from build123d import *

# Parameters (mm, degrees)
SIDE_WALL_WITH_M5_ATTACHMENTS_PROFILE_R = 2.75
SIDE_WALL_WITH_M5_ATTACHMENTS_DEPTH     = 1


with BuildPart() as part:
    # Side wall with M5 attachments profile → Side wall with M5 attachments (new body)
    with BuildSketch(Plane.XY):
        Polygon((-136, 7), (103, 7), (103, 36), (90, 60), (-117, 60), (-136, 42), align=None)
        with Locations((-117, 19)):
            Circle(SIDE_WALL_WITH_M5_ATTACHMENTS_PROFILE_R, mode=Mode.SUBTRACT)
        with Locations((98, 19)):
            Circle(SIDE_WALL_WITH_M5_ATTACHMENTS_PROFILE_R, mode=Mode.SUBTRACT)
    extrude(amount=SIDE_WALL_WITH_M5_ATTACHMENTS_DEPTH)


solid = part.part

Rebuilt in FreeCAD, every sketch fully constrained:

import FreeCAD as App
import Part
import Sketcher
from FreeCAD import Vector
Q = App.Units.Quantity

doc = App.newDocument("Part")
body = doc.addObject("PartDesign::Body", "Body")

sketch1 = body.newObject("Sketcher::SketchObject", "Sketch")
sketch1.AttachmentSupport = (doc.getObject("XY_Plane"), [""])
sketch1.MapMode = "FlatFace"
sketch1.addGeometry([
    Part.LineSegment(Vector(-136, 7, 0), Vector(103, 7, 0)),
    Part.LineSegment(Vector(103, 7, 0), Vector(103, 36, 0)),
    Part.LineSegment(Vector(103, 36, 0), Vector(90, 60, 0)),
    Part.LineSegment(Vector(90, 60, 0), Vector(-117, 60, 0)),
    Part.LineSegment(Vector(-117, 60, 0), Vector(-136, 42, 0)),
    Part.LineSegment(Vector(-136, 42, 0), Vector(-136, 7, 0)),
    Part.Circle(Vector(-117, 19, 0), Vector(0, 0, 1), 2.8),
    Part.Circle(Vector(98, 19, 0), Vector(0, 0, 1), 2.8),
], False)
sketch1.addConstraint([
    Sketcher.Constraint("Coincident", 0, 2, 1, 1),
    Sketcher.Constraint("Coincident", 1, 2, 2, 1),
    Sketcher.Constraint("Coincident", 2, 2, 3, 1),
    Sketcher.Constraint("Coincident", 3, 2, 4, 1),
    Sketcher.Constraint("Coincident", 4, 2, 5, 1),
    Sketcher.Constraint("Coincident", 5, 2, 0, 1),
    Sketcher.Constraint("Horizontal", 0),
    Sketcher.Constraint("Vertical", 1),
    Sketcher.Constraint("Horizontal", 3),
    Sketcher.Constraint("Vertical", 5),
    Sketcher.Constraint("Equal", 6, 7),
    Sketcher.Constraint("Horizontal", 6, 3, 7, 3),
    Sketcher.Constraint("Vertical", 6, 3, 3, 2),
    Sketcher.Constraint("Diameter", 6, Q("5.5 mm")),
    Sketcher.Constraint("DistanceX", 0, 1, 0, 2, Q("239 mm")),
    Sketcher.Constraint("DistanceX", 3, 2, 3, 1, Q("207 mm")),
    Sketcher.Constraint("DistanceY", 1, 1, 1, 2, Q("29 mm")),
    Sketcher.Constraint("DistanceY", 5, 2, 5, 1, Q("35 mm")),
    Sketcher.Constraint("DistanceX", 6, 3, -1, 1, Q("117 mm")),
    Sketcher.Constraint("DistanceY", -1, 1, 6, 3, Q("19 mm")),
    Sketcher.Constraint("DistanceX", -1, 1, 7, 3, Q("98 mm")),
    Sketcher.Constraint("DistanceX", -1, 1, 0, 2, Q("103 mm")),
    Sketcher.Constraint("DistanceY", -1, 1, 0, 2, Q("7 mm")),
    Sketcher.Constraint("DistanceY", -1, 1, 2, 2, Q("60 mm")),
])
pad1 = body.newObject("PartDesign::Pad", "Pad")
pad1.Profile = sketch1
pad1.Length = 1

doc.recompute()
